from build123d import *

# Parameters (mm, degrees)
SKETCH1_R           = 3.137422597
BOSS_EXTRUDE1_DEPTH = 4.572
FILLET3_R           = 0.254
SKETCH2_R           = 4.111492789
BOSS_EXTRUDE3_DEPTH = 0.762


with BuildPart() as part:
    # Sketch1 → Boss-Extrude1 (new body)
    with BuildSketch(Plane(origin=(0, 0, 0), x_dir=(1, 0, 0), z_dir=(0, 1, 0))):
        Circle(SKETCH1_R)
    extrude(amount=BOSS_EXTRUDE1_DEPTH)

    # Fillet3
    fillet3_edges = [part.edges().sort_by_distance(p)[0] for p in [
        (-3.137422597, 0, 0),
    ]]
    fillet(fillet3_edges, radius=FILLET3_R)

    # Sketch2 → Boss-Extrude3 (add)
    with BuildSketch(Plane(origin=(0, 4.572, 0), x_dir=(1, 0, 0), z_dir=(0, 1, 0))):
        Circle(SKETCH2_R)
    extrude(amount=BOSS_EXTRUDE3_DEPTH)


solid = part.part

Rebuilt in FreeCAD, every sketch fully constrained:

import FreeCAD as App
import Part
import Sketcher
from FreeCAD import Vector


def edges_at(feature, points):
    """Names of the edges that pass closest to the given points."""
    edges = feature.Shape.Edges
    near = lambda p: min(range(len(edges)), key=lambda i: edges[i].distToShape(Part.Vertex(*p))[0])
    return sorted({f"Edge{near(p) + 1}" for p in points})

doc = App.newDocument("Part")
params = doc.addObject("Spreadsheet::Sheet", "Params")
for row, (alias, value) in enumerate([
    ("pad1_length", "0.18 in"),
    ("fillet_radius", "0.01 in"),
    ("pad2_length", "0.03 in"),
], start=1):
    params.set(f"A{row}", alias)
    params.set(f"B{row}", "=" + value)
    params.setAlias(f"B{row}", alias)

body = doc.addObject("PartDesign::Body", "Body")

# Sketch on XZ plane
sketch1 = body.newObject("Sketcher::SketchObject", "Sketch")
sketch1.AttachmentSupport = (doc.getObject("XZ_Plane"), [""])
sketch1.MapMode = "FlatFace"
sketch1.addGeometry(Part.Circle(Vector(0, 0, 0), Vector(0, 0, 1), 3.1), False)
sketch1.addConstraint([
    Sketcher.Constraint("Coincident", 0, 3, -1, 1),
    Sketcher.Constraint("Diameter", 0, 6.274845),
])
pad1 = body.newObject("PartDesign::Pad", "Pad")
pad1.Profile = sketch1
pad1.setExpression("Length", "Params.pad1_length")
pad1.Reversed = True
doc.recompute()

fillet = body.newObject("PartDesign::Fillet", "Fillet")
fillet.Base = (pad1, edges_at(pad1, [(-3.137, 0, 0)]))
fillet.setExpression("Radius", "Params.fillet_radius")

# Sketch on XZ plane
sketch2 = body.newObject("Sketcher::SketchObject", "Sketch001")
sketch2.AttachmentSupport = (doc.getObject("XZ_Plane"), [""])
sketch2.MapMode = "FlatFace"
sketch2.AttachmentOffset = App.Placement(Vector(0, 0, -0.18 * 25.4), App.Rotation())
sketch2.addGeometry(Part.Circle(Vector(0, 0, 0), Vector(0, 0, 1), 4.1), False)
sketch2.addConstraint([
    Sketcher.Constraint("Coincident", 0, 3, -1, 1),
    Sketcher.Constraint("Diameter", 0, 8.222986),
])
pad2 = body.newObject("PartDesign::Pad", "Pad001")
pad2.Profile = sketch2
pad2.setExpression("Length", "Params.pad2_length")
pad2.Reversed = True

doc.recompute()
